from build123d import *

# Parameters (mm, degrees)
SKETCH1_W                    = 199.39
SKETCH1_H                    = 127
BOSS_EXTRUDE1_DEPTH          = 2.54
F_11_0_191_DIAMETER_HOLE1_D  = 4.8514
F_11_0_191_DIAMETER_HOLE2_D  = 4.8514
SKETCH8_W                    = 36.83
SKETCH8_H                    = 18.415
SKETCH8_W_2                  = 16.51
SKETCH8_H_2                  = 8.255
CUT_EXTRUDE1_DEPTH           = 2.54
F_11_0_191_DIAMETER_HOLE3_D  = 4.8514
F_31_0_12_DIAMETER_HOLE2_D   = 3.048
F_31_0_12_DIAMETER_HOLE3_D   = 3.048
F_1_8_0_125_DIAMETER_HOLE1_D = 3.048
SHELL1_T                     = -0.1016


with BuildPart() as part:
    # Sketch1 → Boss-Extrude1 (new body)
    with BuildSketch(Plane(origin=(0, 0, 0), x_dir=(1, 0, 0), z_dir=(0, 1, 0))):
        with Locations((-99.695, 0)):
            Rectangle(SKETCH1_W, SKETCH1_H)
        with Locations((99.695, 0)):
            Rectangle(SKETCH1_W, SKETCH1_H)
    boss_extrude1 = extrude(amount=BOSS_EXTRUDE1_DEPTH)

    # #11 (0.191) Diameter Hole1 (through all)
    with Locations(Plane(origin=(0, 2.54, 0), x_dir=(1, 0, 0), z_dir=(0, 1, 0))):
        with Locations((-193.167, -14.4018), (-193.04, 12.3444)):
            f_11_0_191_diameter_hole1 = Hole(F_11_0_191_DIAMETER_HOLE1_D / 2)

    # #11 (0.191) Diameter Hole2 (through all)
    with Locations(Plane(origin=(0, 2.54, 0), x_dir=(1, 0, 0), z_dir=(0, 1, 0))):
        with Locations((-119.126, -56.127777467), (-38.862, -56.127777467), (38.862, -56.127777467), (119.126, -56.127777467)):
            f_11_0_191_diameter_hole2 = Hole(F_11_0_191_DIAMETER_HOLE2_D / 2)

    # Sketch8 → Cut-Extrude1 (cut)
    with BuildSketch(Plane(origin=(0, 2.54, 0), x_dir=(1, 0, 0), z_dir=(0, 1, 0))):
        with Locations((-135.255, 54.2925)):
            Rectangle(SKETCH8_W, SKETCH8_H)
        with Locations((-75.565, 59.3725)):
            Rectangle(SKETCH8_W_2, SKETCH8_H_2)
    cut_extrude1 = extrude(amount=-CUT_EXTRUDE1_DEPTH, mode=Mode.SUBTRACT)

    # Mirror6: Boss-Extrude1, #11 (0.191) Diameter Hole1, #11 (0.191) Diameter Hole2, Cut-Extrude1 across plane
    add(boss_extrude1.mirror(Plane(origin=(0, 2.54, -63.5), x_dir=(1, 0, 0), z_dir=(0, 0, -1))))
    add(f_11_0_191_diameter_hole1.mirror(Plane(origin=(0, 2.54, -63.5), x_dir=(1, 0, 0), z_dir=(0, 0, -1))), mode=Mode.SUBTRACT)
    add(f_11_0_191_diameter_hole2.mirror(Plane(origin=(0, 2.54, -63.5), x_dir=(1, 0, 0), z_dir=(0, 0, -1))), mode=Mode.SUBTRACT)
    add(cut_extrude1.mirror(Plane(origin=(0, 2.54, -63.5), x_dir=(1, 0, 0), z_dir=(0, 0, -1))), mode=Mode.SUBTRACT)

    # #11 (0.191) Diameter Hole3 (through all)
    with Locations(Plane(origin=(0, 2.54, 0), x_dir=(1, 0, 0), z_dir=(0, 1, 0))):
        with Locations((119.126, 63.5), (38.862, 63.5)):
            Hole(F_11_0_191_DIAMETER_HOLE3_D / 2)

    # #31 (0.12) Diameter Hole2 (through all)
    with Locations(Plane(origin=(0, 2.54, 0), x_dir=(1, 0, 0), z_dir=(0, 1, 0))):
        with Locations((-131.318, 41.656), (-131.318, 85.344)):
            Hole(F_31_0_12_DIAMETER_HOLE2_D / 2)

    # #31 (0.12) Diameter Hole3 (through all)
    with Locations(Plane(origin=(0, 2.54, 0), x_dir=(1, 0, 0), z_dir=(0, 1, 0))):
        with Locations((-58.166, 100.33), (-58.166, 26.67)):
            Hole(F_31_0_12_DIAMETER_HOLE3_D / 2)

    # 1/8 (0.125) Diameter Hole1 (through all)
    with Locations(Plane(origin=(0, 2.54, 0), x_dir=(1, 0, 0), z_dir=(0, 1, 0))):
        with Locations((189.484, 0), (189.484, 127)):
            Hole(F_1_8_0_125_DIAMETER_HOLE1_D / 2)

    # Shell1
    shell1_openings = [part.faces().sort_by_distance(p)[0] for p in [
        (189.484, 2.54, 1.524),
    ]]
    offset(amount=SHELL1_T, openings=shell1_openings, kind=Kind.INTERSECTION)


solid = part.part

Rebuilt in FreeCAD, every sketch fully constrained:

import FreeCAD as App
import Part
import Sketcher
from FreeCAD import Vector
Q = App.Units.Quantity


def faces_at(feature, points):
    """Names of the faces that lie closest to the given points."""
    faces = feature.Shape.Faces
    near = lambda p: min(range(len(faces)), key=lambda i: faces[i].distToShape(Part.Vertex(*p))[0])
    return sorted({f"Face{near(p) + 1}" for p in points})

doc = App.newDocument("Part")
body = doc.addObject("PartDesign::Body", "Body")

# Sketch on XZ plane
sketch1 = doc.addObject("Sketcher::SketchObject", "Sketch")
body.addObject(sketch1)
sketch1.AttachmentSupport = (doc.XZ_Plane, [""])
sketch1.MapMode = "FlatFace"
sketch1.addGeometry(Part.LineSegment(Vector(-199, -64, 0), Vector(-199, 64, 0)), False)
sketch1.addGeometry(Part.LineSegment(Vector(-199, 64, 0), Vector(199, 64, 0)), False)
sketch1.addGeometry(Part.LineSegment(Vector(199, 64, 0), Vector(199, -64, 0)), False)
sketch1.addGeometry(Part.LineSegment(Vector(199, -64, 0), Vector(-199, -64, 0)), False)
sketch1.addConstraint(Sketcher.Constraint("Coincident", 0, 2, 1, 1))
sketch1.addConstraint(Sketcher.Constraint("Coincident", 1, 2, 2, 1))
sketch1.addConstraint(Sketcher.Constraint("Coincident", 2, 2, 3, 1))
sketch1.addConstraint(Sketcher.Constraint("Coincident", 3, 2, 0, 1))
sketch1.addConstraint(Sketcher.Constraint("Vertical", 0))
sketch1.addConstraint(Sketcher.Constraint("Horizontal", 1))
sketch1.addConstraint(Sketcher.Constraint("Vertical", 2))
sketch1.addConstraint(Sketcher.Constraint("Horizontal", 3))
sketch1.addConstraint(Sketcher.Constraint("Symmetric", 0, 2, 2, 2, -1, 1))
sketch1.addConstraint(Sketcher.Constraint("DistanceY", 0, 1, 0, 2, Q("5 in")))
sketch1.addConstraint(Sketcher.Constraint("DistanceX", 1, 1, 1, 2, Q("15.7 in")))
pad1 = doc.addObject("PartDesign::Pad", "Pad")
body.addObject(pad1)
pad1.Profile = sketch1
pad1.Length = Q("0.1 in")
pad1.Reversed = True

# Sketch on XZ plane
sketch2 = doc.addObject("Sketcher::SketchObject", "Sketch001")
body.addObject(sketch2)
sketch2.AttachmentSupport = (doc.XZ_Plane, [""])
sketch2.MapMode = "FlatFace"
sketch2.AttachmentOffset = App.Placement(Vector(0, 0, -0.1 * 25.4), App.Rotation())
sketch2.addGeometry(Part.Circle(Vector(-193.2, 14.4, 0), Vector(0, 0, 1), 2.4), False)
sketch2.addGeometry(Part.Circle(Vector(-193, -12.3, 0), Vector(0, 0, 1), 2.4), False)
sketch2.addConstraint(Sketcher.Constraint("Equal", 0, 1))
sketch2.addConstraint(Sketcher.Constraint("Diameter", 0, Q("0.191 in")))
sketch2.addConstraint(Sketcher.Constraint("DistanceX", 1, 3, -1, 1, Q("7.6 in")))
sketch2.addConstraint(Sketcher.Constraint("DistanceX", 0, 3, -1, 1, Q("7.605 in")))
sketch2.addConstraint(Sketcher.Constraint("DistanceY", -1, 1, 0, 3, Q("0.567 in")))
sketch2.addConstraint(Sketcher.Constraint("DistanceY", 1, 3, -1, 1, Q("0.486 in")))
doc.recompute()
hole = doc.addObject("PartDesign::Hole", "Hole")
body.addObject(hole)
hole.Profile = sketch2
hole.ThreadType = "None"
hole.Diameter = Q("0.191 in")
hole.DepthType = "ThroughAll"
hole.Reversed = True

# Sketch on XZ plane
sketch3 = doc.addObject("Sketcher::SketchObject", "Sketch002")
body.addObject(sketch3)
sketch3.AttachmentSupport = (doc.XZ_Plane, [""])
sketch3.MapMode = "FlatFace"
sketch3.AttachmentOffset = App.Placement(Vector(0, 0, -0.1 * 25.4), App.Rotation())
sketch3.addGeometry(Part.Circle(Vector(-119.1, 56.1, 0), Vector(0, 0, 1), 2.4), False)
sketch3.addGeometry(Part.Circle(Vector(-38.9, 56.1, 0), Vector(0, 0, 1), 2.4), False)
sketch3.addGeometry(Part.Circle(Vector(38.9, 56.1, 0), Vector(0, 0, 1), 2.4), False)
sketch3.addGeometry(Part.Circle(Vector(119.1, 56.1, 0), Vector(0, 0, 1), 2.4), False)
sketch3.addConstraint(Sketcher.Constraint("Equal", 0, 1))
sketch3.addConstraint(Sketcher.Constraint("Equal", 1, 2))
sketch3.addConstraint(Sketcher.Constraint("Equal", 2, 3))
sketch3.addConstraint(Sketcher.Constraint("Symmetric", 1, 3, 2, 3, -2))
sketch3.addConstraint(Sketcher.Constraint("Symmetric", 0, 3, 3, 3, -2))
sketch3.addConstraint(Sketcher.Constraint("Horizontal", 0, 3, 1, 3))
sketch3.addConstraint(Sketcher.Constraint("Diameter", 0, Q("0.191 in")))
sketch3.addConstraint(Sketcher.Constraint("DistanceX", 0, 3, -1, 1, Q("4.69 in")))
sketch3.addConstraint(Sketcher.Constraint("DistanceX", 1, 3, -1, 1, Q("1.53 in")))
sketch3.addConstraint(Sketcher.Constraint("DistanceY", -1, 1, 0, 3, Q("56.127777 mm")))
doc.recompute()
hole2 = doc.addObject("PartDesign::Hole", "Hole001")
body.addObject(hole2)
hole2.Profile = sketch3
hole2.ThreadType = "None"
hole2.Diameter = Q("0.191 in")
hole2.DepthType = "ThroughAll"
hole2.Reversed = True

# Sketch on XZ plane
sketch4 = doc.addObject("Sketcher::SketchObject", "Sketch003")
body.addObject(sketch4)
sketch4.AttachmentSupport = (doc.XZ_Plane, [""])
sketch4.MapMode = "FlatFace"
sketch4.AttachmentOffset = App.Placement(Vector(0, 0, -0.1 * 25.4), App.Rotation())
sketch4.addGeometry(Part.LineSegment(Vector(-154, -64, 0), Vector(-154, -45, 0)), False)
sketch4.addGeometry(Part.LineSegment(Vector(-154, -45, 0), Vector(-117, -45, 0)), False)
sketch4.addGeometry(Part.LineSegment(Vector(-117, -45, 0), Vector(-117, -64, 0)), False)
sketch4.addGeometry(Part.LineSegment(Vector(-117, -64, 0), Vector(-154, -64, 0)), False)
sketch4.addGeometry(Part.LineSegment(Vector(-84, -64, 0), Vector(-84, -55, 0)), False)
sketch4.addGeometry(Part.LineSegment(Vector(-84, -55, 0), Vector(-67, -55, 0)), False)
sketch4.addGeometry(Part.LineSegment(Vector(-67, -55, 0), Vector(-67, -64, 0)), False)
sketch4.addGeometry(Part.LineSegment(Vector(-67, -64, 0), Vector(-84, -64, 0)), False)
sketch4.addConstraint(Sketcher.Constraint("Coincident", 0, 2, 1, 1))
sketch4.addConstraint(Sketcher.Constraint("Coincident", 1, 2, 2, 1))
sketch4.addConstraint(Sketcher.Constraint("Coincident", 2, 2, 3, 1))
sketch4.addConstraint(Sketcher.Constraint("Coincident", 3, 2, 0, 1))
sketch4.addConstraint(Sketcher.Constraint("Coincident", 4, 2, 5, 1))
sketch4.addConstraint(Sketcher.Constraint("Coincident", 5, 2, 6, 1))
sketch4.addConstraint(Sketcher.Constraint("Coincident", 6, 2, 7, 1))
sketch4.addConstraint(Sketcher.Constraint("Coincident", 7, 2, 4, 1))
sketch4.addConstraint(Sketcher.Constraint("Vertical", 0))
sketch4.addConstraint(Sketcher.Constraint("Horizontal", 1))
sketch4.addConstraint(Sketcher.Constraint("Vertical", 2))
sketch4.addConstraint(Sketcher.Constraint("Horizontal", 3))
sketch4.addConstraint(Sketcher.Constraint("Vertical", 4))
sketch4.addConstraint(Sketcher.Constraint("Horizontal", 5))
sketch4.addConstraint(Sketcher.Constraint("Vertical", 6))
sketch4.addConstraint(Sketcher.Constraint("Horizontal", 7))
sketch4.addConstraint(Sketcher.Constraint("Horizontal", 3, 2, 6, 2))
sketch4.addConstraint(Sketcher.Constraint("DistanceX", 1, 1, 1, 2, Q("1.45 in")))
sketch4.addConstraint(Sketcher.Constraint("DistanceX", 5, 1, 5, 2, Q("0.65 in")))
sketch4.addConstraint(Sketcher.Constraint("DistanceX", 1, 2, -1, 1, Q("4.6 in")))
sketch4.addConstraint(Sketcher.Constraint("DistanceY", 2, 2, -1, 1, Q("2.5 in")))
sketch4.addConstraint(Sketcher.Constraint("DistanceX", 4, 2, -1, 1, Q("3.3 in")))
sketch4.addConstraint(Sketcher.Constraint("DistanceY", 4, 2, 1, 2, Q("0.4 in")))
sketch4.addConstraint(Sketcher.Constraint("DistanceY", 0, 1, 0, 2, Q("0.725 in")))
pocket1 = doc.addObject("PartDesign::Pocket", "Pocket")
body.addObject(pocket1)
pocket1.Profile = sketch4
pocket1.Length = Q("0.1 in")
pocket1.Reversed = True
doc.recompute()

datumplane = doc.addObject("PartDesign::Plane", "DatumPlane")
body.addObject(datumplane)
datumplane.AttachmentSupport = (doc.XY_Plane, [""])
datumplane.MapMode = "FlatFace"
datumplane.AttachmentOffset = App.Placement(Vector(0, 0, -2.5 * 25.4), App.Rotation())
mirrored = doc.addObject("PartDesign::Mirrored", "Mirrored")
body.addObject(mirrored)
mirrored.Originals = [pad1, hole, hole2, pocket1]
mirrored.MirrorPlane = (datumplane, [""])
body.Tip = mirrored

# Sketch on XZ plane
sketch5 = doc.addObject("Sketcher::SketchObject", "Sketch004")
body.addObject(sketch5)
sketch5.AttachmentSupport = (doc.XZ_Plane, [""])
sketch5.MapMode = "FlatFace"
sketch5.AttachmentOffset = App.Placement(Vector(0, 0, -0.1 * 25.4), App.Rotation())
sketch5.addGeometry(Part.Circle(Vector(119.1, -63.5, 0), Vector(0, 0, 1), 2.4), False)
sketch5.addGeometry(Part.Circle(Vector(38.9, -63.5, 0), Vector(0, 0, 1), 2.4), False)
sketch5.addConstraint(Sketcher.Constraint("Equal", 0, 1))
sketch5.addConstraint(Sketcher.Constraint("Horizontal", 0, 3, 1, 3))
sketch5.addConstraint(Sketcher.Constraint("Diameter", 0, Q("0.191 in")))
sketch5.addConstraint(Sketcher.Constraint("DistanceY", 0, 3, -1, 1, Q("2.5 in")))
sketch5.addConstraint(Sketcher.Constraint("DistanceX", -1, 1, 0, 3, Q("4.69 in")))
sketch5.addConstraint(Sketcher.Constraint("DistanceX", -1, 1, 1, 3, Q("1.53 in")))
doc.recompute()
hole3 = doc.addObject("PartDesign::Hole", "Hole002")
body.addObject(hole3)
hole3.Profile = sketch5
hole3.ThreadType = "None"
hole3.Diameter = Q("0.191 in")
hole3.DepthType = "ThroughAll"
hole3.Reversed = True

# Sketch on XZ plane
sketch6 = doc.addObject("Sketcher::SketchObject", "Sketch005")
body.addObject(sketch6)
sketch6.AttachmentSupport = (doc.XZ_Plane, [""])
sketch6.MapMode = "FlatFace"
sketch6.AttachmentOffset = App.Placement(Vector(0, 0, -0.1 * 25.4), App.Rotation())
sketch6.addGeometry(Part.Circle(Vector(-131.3, -41.7, 0), Vector(0, 0, 1), 1.5), False)
sketch6.addGeometry(Part.Circle(Vector(-131.3, -85.3, 0), Vector(0, 0, 1), 1.5), False)
sketch6.addConstraint(Sketcher.Constraint("Equal", 0, 1))
sketch6.addConstraint(Sketcher.Constraint("Vertical", 0, 3, 1, 3))
sketch6.addConstraint(Sketcher.Constraint("Diameter", 0, Q("0.12 in")))
sketch6.addConstraint(Sketcher.Constraint("DistanceX", 0, 3, -1, 1, Q("5.17 in")))
sketch6.addConstraint(Sketcher.Constraint("DistanceY", 0, 3, -1, 1, Q("1.64 in")))
sketch6.addConstraint(Sketcher.Constraint("DistanceY", 1, 3, -1, 1, Q("3.36 in")))
doc.recompute()
hole4 = doc.addObject("PartDesign::Hole", "Hole003")
body.addObject(hole4)
hole4.Profile = sketch6
hole4.ThreadType = "None"
hole4.Diameter = Q("0.12 in")
hole4.DepthType = "ThroughAll"
hole4.Reversed = True

# Sketch on XZ plane
sketch7 = doc.addObject("Sketcher::SketchObject", "Sketch006")
body.addObject(sketch7)
sketch7.AttachmentSupport = (doc.XZ_Plane, [""])
sketch7.MapMode = "FlatFace"
sketch7.AttachmentOffset = App.Placement(Vector(0, 0, -0.1 * 25.4), App.Rotation())
sketch7.addGeometry(Part.Circle(Vector(-58.2, -100.3, 0), Vector(0, 0, 1), 1.5), False)
sketch7.addGeometry(Part.Circle(Vector(-58.2, -26.7, 0), Vector(0, 0, 1), 1.5), False)
sketch7.addConstraint(Sketcher.Constraint("Equal", 0, 1))
sketch7.addConstraint(Sketcher.Constraint("Vertical", 0, 3, 1, 3))
sketch7.addConstraint(Sketcher.Constraint("Diameter", 0, Q("0.12 in")))
sketch7.addConstraint(Sketcher.Constraint("DistanceY", 0, 3, 1, 3, Q("2.9 in")))
sketch7.addConstraint(Sketcher.Constraint("DistanceX", 0, 3, -1, 1, Q("2.29 in")))
sketch7.addConstraint(Sketcher.Constraint("DistanceY", 0, 3, -1, 1, Q("3.95 in")))
doc.recompute()
hole5 = doc.addObject("PartDesign::Hole", "Hole004")
body.addObject(hole5)
hole5.Profile = sketch7
hole5.ThreadType = "None"
hole5.Diameter = Q("0.12 in")
hole5.DepthType = "ThroughAll"
hole5.Reversed = True

# Sketch on XZ plane
sketch8 = doc.addObject("Sketcher::SketchObject", "Sketch007")
body.addObject(sketch8)
sketch8.AttachmentSupport = (doc.XZ_Plane, [""])
sketch8.MapMode = "FlatFace"
sketch8.AttachmentOffset = App.Placement(Vector(0, 0, -0.1 * 25.4), App.Rotation())
sketch8.addGeometry(Part.Circle(Vector(189.5, 0, 0), Vector(0, 0, 1), 1.5), False)
sketch8.addGeometry(Part.Circle(Vector(189.5, -127, 0), Vector(0, 0, 1), 1.5), False)
sketch8.addConstraint(Sketcher.Constraint("Equal", 0, 1))
sketch8.addConstraint(Sketcher.Constraint("PointOnObject", 0, 3, -1))
sketch8.addConstraint(Sketcher.Constraint("Vertical", 0, 3, 1, 3))
sketch8.addConstraint(Sketcher.Constraint("Diameter", 0, Q("0.12 in")))
sketch8.addConstraint(Sketcher.Constraint("DistanceY", 1, 3, -1, 1, Q("5 in")))
sketch8.addConstraint(Sketcher.Constraint("DistanceX", -1, 1, 0, 3, Q("7.46 in")))
doc.recompute()
hole6 = doc.addObject("PartDesign::Hole", "Hole005")
body.addObject(hole6)
hole6.Profile = sketch8
hole6.ThreadType = "None"
hole6.Diameter = Q("0.12 in")
hole6.DepthType = "ThroughAll"
hole6.Reversed = True
doc.recompute()

thickness = doc.addObject("PartDesign::Thickness", "Thickness")
body.addObject(thickness)
thickness.Base = (hole6, faces_at(hole6, [(0, 2.54, -63.5)]))
thickness.Value = Q("0.004 in")
thickness.Reversed = True
thickness.Join = "Intersection"

doc.recompute()
